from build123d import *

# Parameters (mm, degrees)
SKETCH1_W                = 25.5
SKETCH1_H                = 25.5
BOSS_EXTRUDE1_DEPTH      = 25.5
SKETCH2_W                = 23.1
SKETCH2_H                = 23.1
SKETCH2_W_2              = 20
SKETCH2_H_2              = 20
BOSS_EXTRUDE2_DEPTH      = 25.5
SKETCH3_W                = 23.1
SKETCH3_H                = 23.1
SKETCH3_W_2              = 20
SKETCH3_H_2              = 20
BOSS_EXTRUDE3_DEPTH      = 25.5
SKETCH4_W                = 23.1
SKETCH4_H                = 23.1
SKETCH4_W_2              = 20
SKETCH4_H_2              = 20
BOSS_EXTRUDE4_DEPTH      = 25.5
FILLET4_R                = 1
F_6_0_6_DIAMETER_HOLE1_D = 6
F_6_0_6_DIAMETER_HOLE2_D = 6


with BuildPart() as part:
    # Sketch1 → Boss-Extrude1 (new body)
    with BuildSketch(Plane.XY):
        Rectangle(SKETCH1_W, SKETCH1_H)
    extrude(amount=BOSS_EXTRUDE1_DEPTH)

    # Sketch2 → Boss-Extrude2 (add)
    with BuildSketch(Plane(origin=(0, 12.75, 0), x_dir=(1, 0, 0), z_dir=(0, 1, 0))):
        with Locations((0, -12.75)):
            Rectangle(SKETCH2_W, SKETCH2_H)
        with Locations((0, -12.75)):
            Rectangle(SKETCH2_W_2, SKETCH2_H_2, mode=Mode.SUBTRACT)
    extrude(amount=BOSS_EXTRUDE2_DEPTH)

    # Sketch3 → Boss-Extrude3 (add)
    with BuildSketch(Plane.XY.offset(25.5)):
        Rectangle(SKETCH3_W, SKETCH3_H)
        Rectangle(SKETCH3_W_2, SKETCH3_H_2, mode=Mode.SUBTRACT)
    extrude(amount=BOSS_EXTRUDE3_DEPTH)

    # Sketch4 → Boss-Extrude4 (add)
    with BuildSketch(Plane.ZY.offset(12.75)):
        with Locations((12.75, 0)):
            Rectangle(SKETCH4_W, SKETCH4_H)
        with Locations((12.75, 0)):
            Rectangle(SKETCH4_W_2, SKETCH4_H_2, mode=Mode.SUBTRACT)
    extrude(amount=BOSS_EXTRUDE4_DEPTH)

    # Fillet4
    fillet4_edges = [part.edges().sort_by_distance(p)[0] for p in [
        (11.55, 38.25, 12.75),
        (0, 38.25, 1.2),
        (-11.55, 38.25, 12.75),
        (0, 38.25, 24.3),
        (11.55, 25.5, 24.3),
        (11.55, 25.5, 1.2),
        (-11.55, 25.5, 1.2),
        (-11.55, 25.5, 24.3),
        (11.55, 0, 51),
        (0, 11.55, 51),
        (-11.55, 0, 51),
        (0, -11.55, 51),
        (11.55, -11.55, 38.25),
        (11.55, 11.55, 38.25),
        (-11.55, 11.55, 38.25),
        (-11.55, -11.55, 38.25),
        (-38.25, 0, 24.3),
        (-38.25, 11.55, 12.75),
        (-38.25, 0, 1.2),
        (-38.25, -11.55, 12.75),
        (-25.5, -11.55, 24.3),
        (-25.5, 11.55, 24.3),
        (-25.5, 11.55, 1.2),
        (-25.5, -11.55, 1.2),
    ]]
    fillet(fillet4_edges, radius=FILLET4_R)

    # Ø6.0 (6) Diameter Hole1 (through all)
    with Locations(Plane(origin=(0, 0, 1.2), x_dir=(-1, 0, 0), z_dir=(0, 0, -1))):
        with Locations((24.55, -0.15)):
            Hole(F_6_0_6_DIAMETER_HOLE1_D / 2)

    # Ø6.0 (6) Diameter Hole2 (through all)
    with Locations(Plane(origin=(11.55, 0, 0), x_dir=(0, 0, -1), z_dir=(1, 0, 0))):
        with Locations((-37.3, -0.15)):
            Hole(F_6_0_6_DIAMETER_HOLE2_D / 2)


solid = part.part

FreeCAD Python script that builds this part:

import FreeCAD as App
import Part
import Sketcher
from FreeCAD import Vector


def edges_at(feature, points):
    """Names of the edges that pass closest to the given points."""
    edges = feature.Shape.Edges
    near = lambda p: min(range(len(edges)), key=lambda i: edges[i].distToShape(Part.Vertex(*p))[0])
    return sorted({f"Edge{near(p) + 1}" for p in points})


def add_polygon(sketch, points):
    """Adds a closed chain of lines whose ends are joined by coincident constraints."""
    first, n = sketch.GeometryCount, len(points)
    for a, b in zip(points, points[1:] + points[:1]):
        sketch.addGeometry(Part.LineSegment(App.Vector(*a, 0), App.Vector(*b, 0)), False)
    for i in range(n):
        sketch.addConstraint(Sketcher.Constraint("Coincident", first + i, 2, first + (i + 1) % n, 1))

doc = App.newDocument("Part")
body = doc.addObject("PartDesign::Body", "Body")

# Sketch on XY plane
sketch1 = doc.addObject("Sketcher::SketchObject", "Sketch")
body.addObject(sketch1)
sketch1.AttachmentSupport = (doc.XY_Plane, [""])
sketch1.MapMode = "FlatFace"
add_polygon(sketch1, [(-12.75, 12.75), (-12.75, -12.75), (12.75, -12.75), (12.75, 12.75)])  # lines 0-3
sketch1.addConstraint(Sketcher.Constraint("Vertical", 0))
sketch1.addConstraint(Sketcher.Constraint("Horizontal", 1))
sketch1.addConstraint(Sketcher.Constraint("Vertical", 2))
sketch1.addConstraint(Sketcher.Constraint("Horizontal", 3))
sketch1.addConstraint(Sketcher.Constraint("Symmetric", 0, 2, 2, 2, -1, 1))
sketch1.addConstraint(Sketcher.Constraint("Equal", 3, 0))
sketch1.addConstraint(Sketcher.Constraint("DistanceX", 1, 1, 1, 2, 25.5))
pad1 = doc.addObject("PartDesign::Pad", "Pad")
body.addObject(pad1)
pad1.Profile = sketch1
pad1.Length = 25.5

# Sketch on XZ plane
sketch2 = doc.addObject("Sketcher::SketchObject", "Sketch001")
body.addObject(sketch2)
sketch2.AttachmentSupport = (doc.XZ_Plane, [""])
sketch2.MapMode = "FlatFace"
sketch2.AttachmentOffset = App.Placement(Vector(0, 0, -12.75), App.Rotation())
add_polygon(sketch2, [(-11.55, 1.2), (-11.55, 24.3), (11.55, 24.3), (11.55, 1.2)])  # lines 0-3
add_polygon(sketch2, [(10, 22.75), (-10, 22.75), (-10, 2.75), (10, 2.75)])  # lines 4-7
sketch2.addConstraint(Sketcher.Constraint("Vertical", 0))
sketch2.addConstraint(Sketcher.Constraint("Horizontal", 1))
sketch2.addConstraint(Sketcher.Constraint("Vertical", 2))
sketch2.addConstraint(Sketcher.Constraint("Horizontal", 3))
sketch2.addConstraint(Sketcher.Constraint("Horizontal", 4))
sketch2.addConstraint(Sketcher.Constraint("Vertical", 5))
sketch2.addConstraint(Sketcher.Constraint("Horizontal", 6))
sketch2.addConstraint(Sketcher.Constraint("Vertical", 7))
sketch2.addConstraint(Sketcher.Constraint("Equal", 3, 0))
sketch2.addConstraint(Sketcher.Constraint("Equal", 6, 5))
sketch2.addConstraint(Sketcher.Constraint("DistanceX", 4, 2, 4, 1, 20.0))
sketch2.addConstraint(Sketcher.Constraint("DistanceX", 1, 1, 1, 2, 23.1))
sketch2.addConstraint(Sketcher.Constraint("DistanceX", 4, 2, -1, 1, 10.0))
sketch2.addConstraint(Sketcher.Constraint("DistanceY", -1, 1, 0, 2, 24.3))
sketch2.addConstraint(Sketcher.Constraint("DistanceX", 0, 2, -1, 1, 11.55))
sketch2.addConstraint(Sketcher.Constraint("DistanceY", -1, 1, 4, 2, 22.75))
pad2 = doc.addObject("PartDesign::Pad", "Pad001")
body.addObject(pad2)
pad2.Profile = sketch2
pad2.Length = 25.5
pad2.Reversed = True

# Sketch on XY plane
sketch3 = doc.addObject("Sketcher::SketchObject", "Sketch002")
body.addObject(sketch3)
sketch3.AttachmentSupport = (doc.XY_Plane, [""])
sketch3.MapMode = "FlatFace"
sketch3.AttachmentOffset = App.Placement(Vector(0, 0, 25.5), App.Rotation())
add_polygon(sketch3, [(-11.55, 11.55), (-11.55, -11.55), (11.55, -11.55), (11.55, 11.55)])  # lines 0-3
add_polygon(sketch3, [(10, -10), (-10, -10), (-10, 10), (10, 10)])  # lines 4-7
sketch3.addConstraint(Sketcher.Constraint("Vertical", 0))
sketch3.addConstraint(Sketcher.Constraint("Horizontal", 1))
sketch3.addConstraint(Sketcher.Constraint("Vertical", 2))
sketch3.addConstraint(Sketcher.Constraint("Horizontal", 3))
sketch3.addConstraint(Sketcher.Constraint("Horizontal", 4))
sketch3.addConstraint(Sketcher.Constraint("Vertical", 5))
sketch3.addConstraint(Sketcher.Constraint("Horizontal", 6))
sketch3.addConstraint(Sketcher.Constraint("Vertical", 7))
sketch3.addConstraint(Sketcher.Constraint("Symmetric", 0, 2, 2, 2, -1, 1))
sketch3.addConstraint(Sketcher.Constraint("Symmetric", 4, 2, 6, 2, -1, 1))
sketch3.addConstraint(Sketcher.Constraint("Equal", 3, 0))
sketch3.addConstraint(Sketcher.Constraint("Equal", 6, 5))
sketch3.addConstraint(Sketcher.Constraint("DistanceX", 4, 2, 4, 1, 20.0))
sketch3.addConstraint(Sketcher.Constraint("DistanceX", 1, 1, 1, 2, 23.1))
pad3 = doc.addObject("PartDesign::Pad", "Pad002")
body.addObject(pad3)
pad3.Profile = sketch3
pad3.Length = 25.5

# Sketch on YZ plane
sketch4 = doc.addObject("Sketcher::SketchObject", "Sketch003")
body.addObject(sketch4)
sketch4.AttachmentSupport = (doc.YZ_Plane, [""])
sketch4.MapMode = "FlatFace"
sketch4.AttachmentOffset = App.Placement(Vector(0, 0, -12.75), App.Rotation())
add_polygon(sketch4, [(11.55, 1.2), (-11.55, 1.2), (-11.55, 24.3), (11.55, 24.3)])  # lines 0-3
add_polygon(sketch4, [(-10, 22.75), (-10, 2.75), (10, 2.75), (10, 22.75)])  # lines 4-7
sketch4.addConstraint(Sketcher.Constraint("Horizontal", 0))
sketch4.addConstraint(Sketcher.Constraint("Vertical", 1))
sketch4.addConstraint(Sketcher.Constraint("Horizontal", 2))
sketch4.addConstraint(Sketcher.Constraint("Vertical", 3))
sketch4.addConstraint(Sketcher.Constraint("Vertical", 4))
sketch4.addConstraint(Sketcher.Constraint("Horizontal", 5))
sketch4.addConstraint(Sketcher.Constraint("Vertical", 6))
sketch4.addConstraint(Sketcher.Constraint("Horizontal", 7))
sketch4.addConstraint(Sketcher.Constraint("Equal", 2, 1))
sketch4.addConstraint(Sketcher.Constraint("Equal", 7, 4))
sketch4.addConstraint(Sketcher.Constraint("DistanceX", 5, 1, 5, 2, 20.0))
sketch4.addConstraint(Sketcher.Constraint("DistanceX", 0, 2, 0, 1, 23.1))
sketch4.addConstraint(Sketcher.Constraint("DistanceX", 4, 2, -1, 1, 10.0))
sketch4.addConstraint(Sketcher.Constraint("DistanceY", -1, 1, 0, 2, 1.2))
sketch4.addConstraint(Sketcher.Constraint("DistanceX", 0, 2, -1, 1, 11.55))
sketch4.addConstraint(Sketcher.Constraint("DistanceY", -1, 1, 4, 2, 2.75))
pad4 = doc.addObject("PartDesign::Pad", "Pad003")
body.addObject(pad4)
pad4.Profile = sketch4
pad4.Length = 25.5
pad4.Reversed = True
doc.recompute()

fillet = doc.addObject("PartDesign::Fillet", "Fillet")
body.addObject(fillet)
fillet.Base = (pad4, edges_at(pad4, [
    (11.55, 38.25, 12.75),
    (0, 38.25, 1.2),
    (-11.55, 38.25, 12.75),
    (0, 38.25, 24.3),
    (11.55, 25.5, 24.3),
    (11.55, 25.5, 1.2),
    (-11.55, 25.5, 1.2),
    (-11.55, 25.5, 24.3),
    (11.55, 0, 51),
    (0, 11.55, 51),
    (-11.55, 0, 51),
    (0, -11.55, 51),
    (11.55, -11.55, 38.25),
    (11.55, 11.55, 38.25),
    (-11.55, 11.55, 38.25),
    (-11.55, -11.55, 38.25),
    (-38.25, 0, 24.3),
    (-38.25, 11.55, 12.75),
    (-38.25, 0, 1.2),
    (-38.25, -11.55, 12.75),
    (-25.5, -11.55, 24.3),
    (-25.5, 11.55, 24.3),
    (-25.5, 11.55, 1.2),
    (-25.5, -11.55, 1.2),
]))
fillet.Radius = 1

# Sketch on XY plane
sketch5 = doc.addObject("Sketcher::SketchObject", "Sketch004")
body.addObject(sketch5)
sketch5.AttachmentSupport = (doc.XY_Plane, [""])
sketch5.MapMode = "FlatFace"
sketch5.AttachmentOffset = App.Placement(Vector(0, 0, 1.2), App.Rotation())
sketch5.addGeometry(Part.Circle(Vector(-24.55, -0.15, 0), Vector(0, 0, 1), 3), False)
sketch5.addConstraint(Sketcher.Constraint("Diameter", 0, 6.0))
sketch5.addConstraint(Sketcher.Constraint("DistanceX", 0, 3, -1, 1, 24.55))
sketch5.addConstraint(Sketcher.Constraint("DistanceY", 0, 3, -1, 1, 0.15))
doc.recompute()
hole = doc.addObject("PartDesign::Hole", "Hole")
body.addObject(hole)
hole.Profile = sketch5
hole.ThreadType = "None"
hole.Diameter = 6
hole.DepthType = "ThroughAll"
hole.Reversed = True

# Sketch on YZ plane
sketch6 = doc.addObject("Sketcher::SketchObject", "Sketch005")
body.addObject(sketch6)
sketch6.AttachmentSupport = (doc.YZ_Plane, [""])
sketch6.MapMode = "FlatFace"
sketch6.AttachmentOffset = App.Placement(Vector(0, 0, 11.55), App.Rotation())
sketch6.addGeometry(Part.Circle(Vector(-0.15, 37.3, 0), Vector(0, 0, 1), 3), False)
sketch6.addConstraint(Sketcher.Constraint("Diameter", 0, 6.0))
sketch6.addConstraint(Sketcher.Constraint("DistanceY", -1, 1, 0, 3, 37.3))
sketch6.addConstraint(Sketcher.Constraint("DistanceX", 0, 3, -1, 1, 0.15))
doc.recompute()
hole2 = doc.addObject("PartDesign::Hole", "Hole001")
body.addObject(hole2)
hole2.Profile = sketch6
hole2.ThreadType = "None"
hole2.Diameter = 6
hole2.DepthType = "ThroughAll"

doc.recompute()
